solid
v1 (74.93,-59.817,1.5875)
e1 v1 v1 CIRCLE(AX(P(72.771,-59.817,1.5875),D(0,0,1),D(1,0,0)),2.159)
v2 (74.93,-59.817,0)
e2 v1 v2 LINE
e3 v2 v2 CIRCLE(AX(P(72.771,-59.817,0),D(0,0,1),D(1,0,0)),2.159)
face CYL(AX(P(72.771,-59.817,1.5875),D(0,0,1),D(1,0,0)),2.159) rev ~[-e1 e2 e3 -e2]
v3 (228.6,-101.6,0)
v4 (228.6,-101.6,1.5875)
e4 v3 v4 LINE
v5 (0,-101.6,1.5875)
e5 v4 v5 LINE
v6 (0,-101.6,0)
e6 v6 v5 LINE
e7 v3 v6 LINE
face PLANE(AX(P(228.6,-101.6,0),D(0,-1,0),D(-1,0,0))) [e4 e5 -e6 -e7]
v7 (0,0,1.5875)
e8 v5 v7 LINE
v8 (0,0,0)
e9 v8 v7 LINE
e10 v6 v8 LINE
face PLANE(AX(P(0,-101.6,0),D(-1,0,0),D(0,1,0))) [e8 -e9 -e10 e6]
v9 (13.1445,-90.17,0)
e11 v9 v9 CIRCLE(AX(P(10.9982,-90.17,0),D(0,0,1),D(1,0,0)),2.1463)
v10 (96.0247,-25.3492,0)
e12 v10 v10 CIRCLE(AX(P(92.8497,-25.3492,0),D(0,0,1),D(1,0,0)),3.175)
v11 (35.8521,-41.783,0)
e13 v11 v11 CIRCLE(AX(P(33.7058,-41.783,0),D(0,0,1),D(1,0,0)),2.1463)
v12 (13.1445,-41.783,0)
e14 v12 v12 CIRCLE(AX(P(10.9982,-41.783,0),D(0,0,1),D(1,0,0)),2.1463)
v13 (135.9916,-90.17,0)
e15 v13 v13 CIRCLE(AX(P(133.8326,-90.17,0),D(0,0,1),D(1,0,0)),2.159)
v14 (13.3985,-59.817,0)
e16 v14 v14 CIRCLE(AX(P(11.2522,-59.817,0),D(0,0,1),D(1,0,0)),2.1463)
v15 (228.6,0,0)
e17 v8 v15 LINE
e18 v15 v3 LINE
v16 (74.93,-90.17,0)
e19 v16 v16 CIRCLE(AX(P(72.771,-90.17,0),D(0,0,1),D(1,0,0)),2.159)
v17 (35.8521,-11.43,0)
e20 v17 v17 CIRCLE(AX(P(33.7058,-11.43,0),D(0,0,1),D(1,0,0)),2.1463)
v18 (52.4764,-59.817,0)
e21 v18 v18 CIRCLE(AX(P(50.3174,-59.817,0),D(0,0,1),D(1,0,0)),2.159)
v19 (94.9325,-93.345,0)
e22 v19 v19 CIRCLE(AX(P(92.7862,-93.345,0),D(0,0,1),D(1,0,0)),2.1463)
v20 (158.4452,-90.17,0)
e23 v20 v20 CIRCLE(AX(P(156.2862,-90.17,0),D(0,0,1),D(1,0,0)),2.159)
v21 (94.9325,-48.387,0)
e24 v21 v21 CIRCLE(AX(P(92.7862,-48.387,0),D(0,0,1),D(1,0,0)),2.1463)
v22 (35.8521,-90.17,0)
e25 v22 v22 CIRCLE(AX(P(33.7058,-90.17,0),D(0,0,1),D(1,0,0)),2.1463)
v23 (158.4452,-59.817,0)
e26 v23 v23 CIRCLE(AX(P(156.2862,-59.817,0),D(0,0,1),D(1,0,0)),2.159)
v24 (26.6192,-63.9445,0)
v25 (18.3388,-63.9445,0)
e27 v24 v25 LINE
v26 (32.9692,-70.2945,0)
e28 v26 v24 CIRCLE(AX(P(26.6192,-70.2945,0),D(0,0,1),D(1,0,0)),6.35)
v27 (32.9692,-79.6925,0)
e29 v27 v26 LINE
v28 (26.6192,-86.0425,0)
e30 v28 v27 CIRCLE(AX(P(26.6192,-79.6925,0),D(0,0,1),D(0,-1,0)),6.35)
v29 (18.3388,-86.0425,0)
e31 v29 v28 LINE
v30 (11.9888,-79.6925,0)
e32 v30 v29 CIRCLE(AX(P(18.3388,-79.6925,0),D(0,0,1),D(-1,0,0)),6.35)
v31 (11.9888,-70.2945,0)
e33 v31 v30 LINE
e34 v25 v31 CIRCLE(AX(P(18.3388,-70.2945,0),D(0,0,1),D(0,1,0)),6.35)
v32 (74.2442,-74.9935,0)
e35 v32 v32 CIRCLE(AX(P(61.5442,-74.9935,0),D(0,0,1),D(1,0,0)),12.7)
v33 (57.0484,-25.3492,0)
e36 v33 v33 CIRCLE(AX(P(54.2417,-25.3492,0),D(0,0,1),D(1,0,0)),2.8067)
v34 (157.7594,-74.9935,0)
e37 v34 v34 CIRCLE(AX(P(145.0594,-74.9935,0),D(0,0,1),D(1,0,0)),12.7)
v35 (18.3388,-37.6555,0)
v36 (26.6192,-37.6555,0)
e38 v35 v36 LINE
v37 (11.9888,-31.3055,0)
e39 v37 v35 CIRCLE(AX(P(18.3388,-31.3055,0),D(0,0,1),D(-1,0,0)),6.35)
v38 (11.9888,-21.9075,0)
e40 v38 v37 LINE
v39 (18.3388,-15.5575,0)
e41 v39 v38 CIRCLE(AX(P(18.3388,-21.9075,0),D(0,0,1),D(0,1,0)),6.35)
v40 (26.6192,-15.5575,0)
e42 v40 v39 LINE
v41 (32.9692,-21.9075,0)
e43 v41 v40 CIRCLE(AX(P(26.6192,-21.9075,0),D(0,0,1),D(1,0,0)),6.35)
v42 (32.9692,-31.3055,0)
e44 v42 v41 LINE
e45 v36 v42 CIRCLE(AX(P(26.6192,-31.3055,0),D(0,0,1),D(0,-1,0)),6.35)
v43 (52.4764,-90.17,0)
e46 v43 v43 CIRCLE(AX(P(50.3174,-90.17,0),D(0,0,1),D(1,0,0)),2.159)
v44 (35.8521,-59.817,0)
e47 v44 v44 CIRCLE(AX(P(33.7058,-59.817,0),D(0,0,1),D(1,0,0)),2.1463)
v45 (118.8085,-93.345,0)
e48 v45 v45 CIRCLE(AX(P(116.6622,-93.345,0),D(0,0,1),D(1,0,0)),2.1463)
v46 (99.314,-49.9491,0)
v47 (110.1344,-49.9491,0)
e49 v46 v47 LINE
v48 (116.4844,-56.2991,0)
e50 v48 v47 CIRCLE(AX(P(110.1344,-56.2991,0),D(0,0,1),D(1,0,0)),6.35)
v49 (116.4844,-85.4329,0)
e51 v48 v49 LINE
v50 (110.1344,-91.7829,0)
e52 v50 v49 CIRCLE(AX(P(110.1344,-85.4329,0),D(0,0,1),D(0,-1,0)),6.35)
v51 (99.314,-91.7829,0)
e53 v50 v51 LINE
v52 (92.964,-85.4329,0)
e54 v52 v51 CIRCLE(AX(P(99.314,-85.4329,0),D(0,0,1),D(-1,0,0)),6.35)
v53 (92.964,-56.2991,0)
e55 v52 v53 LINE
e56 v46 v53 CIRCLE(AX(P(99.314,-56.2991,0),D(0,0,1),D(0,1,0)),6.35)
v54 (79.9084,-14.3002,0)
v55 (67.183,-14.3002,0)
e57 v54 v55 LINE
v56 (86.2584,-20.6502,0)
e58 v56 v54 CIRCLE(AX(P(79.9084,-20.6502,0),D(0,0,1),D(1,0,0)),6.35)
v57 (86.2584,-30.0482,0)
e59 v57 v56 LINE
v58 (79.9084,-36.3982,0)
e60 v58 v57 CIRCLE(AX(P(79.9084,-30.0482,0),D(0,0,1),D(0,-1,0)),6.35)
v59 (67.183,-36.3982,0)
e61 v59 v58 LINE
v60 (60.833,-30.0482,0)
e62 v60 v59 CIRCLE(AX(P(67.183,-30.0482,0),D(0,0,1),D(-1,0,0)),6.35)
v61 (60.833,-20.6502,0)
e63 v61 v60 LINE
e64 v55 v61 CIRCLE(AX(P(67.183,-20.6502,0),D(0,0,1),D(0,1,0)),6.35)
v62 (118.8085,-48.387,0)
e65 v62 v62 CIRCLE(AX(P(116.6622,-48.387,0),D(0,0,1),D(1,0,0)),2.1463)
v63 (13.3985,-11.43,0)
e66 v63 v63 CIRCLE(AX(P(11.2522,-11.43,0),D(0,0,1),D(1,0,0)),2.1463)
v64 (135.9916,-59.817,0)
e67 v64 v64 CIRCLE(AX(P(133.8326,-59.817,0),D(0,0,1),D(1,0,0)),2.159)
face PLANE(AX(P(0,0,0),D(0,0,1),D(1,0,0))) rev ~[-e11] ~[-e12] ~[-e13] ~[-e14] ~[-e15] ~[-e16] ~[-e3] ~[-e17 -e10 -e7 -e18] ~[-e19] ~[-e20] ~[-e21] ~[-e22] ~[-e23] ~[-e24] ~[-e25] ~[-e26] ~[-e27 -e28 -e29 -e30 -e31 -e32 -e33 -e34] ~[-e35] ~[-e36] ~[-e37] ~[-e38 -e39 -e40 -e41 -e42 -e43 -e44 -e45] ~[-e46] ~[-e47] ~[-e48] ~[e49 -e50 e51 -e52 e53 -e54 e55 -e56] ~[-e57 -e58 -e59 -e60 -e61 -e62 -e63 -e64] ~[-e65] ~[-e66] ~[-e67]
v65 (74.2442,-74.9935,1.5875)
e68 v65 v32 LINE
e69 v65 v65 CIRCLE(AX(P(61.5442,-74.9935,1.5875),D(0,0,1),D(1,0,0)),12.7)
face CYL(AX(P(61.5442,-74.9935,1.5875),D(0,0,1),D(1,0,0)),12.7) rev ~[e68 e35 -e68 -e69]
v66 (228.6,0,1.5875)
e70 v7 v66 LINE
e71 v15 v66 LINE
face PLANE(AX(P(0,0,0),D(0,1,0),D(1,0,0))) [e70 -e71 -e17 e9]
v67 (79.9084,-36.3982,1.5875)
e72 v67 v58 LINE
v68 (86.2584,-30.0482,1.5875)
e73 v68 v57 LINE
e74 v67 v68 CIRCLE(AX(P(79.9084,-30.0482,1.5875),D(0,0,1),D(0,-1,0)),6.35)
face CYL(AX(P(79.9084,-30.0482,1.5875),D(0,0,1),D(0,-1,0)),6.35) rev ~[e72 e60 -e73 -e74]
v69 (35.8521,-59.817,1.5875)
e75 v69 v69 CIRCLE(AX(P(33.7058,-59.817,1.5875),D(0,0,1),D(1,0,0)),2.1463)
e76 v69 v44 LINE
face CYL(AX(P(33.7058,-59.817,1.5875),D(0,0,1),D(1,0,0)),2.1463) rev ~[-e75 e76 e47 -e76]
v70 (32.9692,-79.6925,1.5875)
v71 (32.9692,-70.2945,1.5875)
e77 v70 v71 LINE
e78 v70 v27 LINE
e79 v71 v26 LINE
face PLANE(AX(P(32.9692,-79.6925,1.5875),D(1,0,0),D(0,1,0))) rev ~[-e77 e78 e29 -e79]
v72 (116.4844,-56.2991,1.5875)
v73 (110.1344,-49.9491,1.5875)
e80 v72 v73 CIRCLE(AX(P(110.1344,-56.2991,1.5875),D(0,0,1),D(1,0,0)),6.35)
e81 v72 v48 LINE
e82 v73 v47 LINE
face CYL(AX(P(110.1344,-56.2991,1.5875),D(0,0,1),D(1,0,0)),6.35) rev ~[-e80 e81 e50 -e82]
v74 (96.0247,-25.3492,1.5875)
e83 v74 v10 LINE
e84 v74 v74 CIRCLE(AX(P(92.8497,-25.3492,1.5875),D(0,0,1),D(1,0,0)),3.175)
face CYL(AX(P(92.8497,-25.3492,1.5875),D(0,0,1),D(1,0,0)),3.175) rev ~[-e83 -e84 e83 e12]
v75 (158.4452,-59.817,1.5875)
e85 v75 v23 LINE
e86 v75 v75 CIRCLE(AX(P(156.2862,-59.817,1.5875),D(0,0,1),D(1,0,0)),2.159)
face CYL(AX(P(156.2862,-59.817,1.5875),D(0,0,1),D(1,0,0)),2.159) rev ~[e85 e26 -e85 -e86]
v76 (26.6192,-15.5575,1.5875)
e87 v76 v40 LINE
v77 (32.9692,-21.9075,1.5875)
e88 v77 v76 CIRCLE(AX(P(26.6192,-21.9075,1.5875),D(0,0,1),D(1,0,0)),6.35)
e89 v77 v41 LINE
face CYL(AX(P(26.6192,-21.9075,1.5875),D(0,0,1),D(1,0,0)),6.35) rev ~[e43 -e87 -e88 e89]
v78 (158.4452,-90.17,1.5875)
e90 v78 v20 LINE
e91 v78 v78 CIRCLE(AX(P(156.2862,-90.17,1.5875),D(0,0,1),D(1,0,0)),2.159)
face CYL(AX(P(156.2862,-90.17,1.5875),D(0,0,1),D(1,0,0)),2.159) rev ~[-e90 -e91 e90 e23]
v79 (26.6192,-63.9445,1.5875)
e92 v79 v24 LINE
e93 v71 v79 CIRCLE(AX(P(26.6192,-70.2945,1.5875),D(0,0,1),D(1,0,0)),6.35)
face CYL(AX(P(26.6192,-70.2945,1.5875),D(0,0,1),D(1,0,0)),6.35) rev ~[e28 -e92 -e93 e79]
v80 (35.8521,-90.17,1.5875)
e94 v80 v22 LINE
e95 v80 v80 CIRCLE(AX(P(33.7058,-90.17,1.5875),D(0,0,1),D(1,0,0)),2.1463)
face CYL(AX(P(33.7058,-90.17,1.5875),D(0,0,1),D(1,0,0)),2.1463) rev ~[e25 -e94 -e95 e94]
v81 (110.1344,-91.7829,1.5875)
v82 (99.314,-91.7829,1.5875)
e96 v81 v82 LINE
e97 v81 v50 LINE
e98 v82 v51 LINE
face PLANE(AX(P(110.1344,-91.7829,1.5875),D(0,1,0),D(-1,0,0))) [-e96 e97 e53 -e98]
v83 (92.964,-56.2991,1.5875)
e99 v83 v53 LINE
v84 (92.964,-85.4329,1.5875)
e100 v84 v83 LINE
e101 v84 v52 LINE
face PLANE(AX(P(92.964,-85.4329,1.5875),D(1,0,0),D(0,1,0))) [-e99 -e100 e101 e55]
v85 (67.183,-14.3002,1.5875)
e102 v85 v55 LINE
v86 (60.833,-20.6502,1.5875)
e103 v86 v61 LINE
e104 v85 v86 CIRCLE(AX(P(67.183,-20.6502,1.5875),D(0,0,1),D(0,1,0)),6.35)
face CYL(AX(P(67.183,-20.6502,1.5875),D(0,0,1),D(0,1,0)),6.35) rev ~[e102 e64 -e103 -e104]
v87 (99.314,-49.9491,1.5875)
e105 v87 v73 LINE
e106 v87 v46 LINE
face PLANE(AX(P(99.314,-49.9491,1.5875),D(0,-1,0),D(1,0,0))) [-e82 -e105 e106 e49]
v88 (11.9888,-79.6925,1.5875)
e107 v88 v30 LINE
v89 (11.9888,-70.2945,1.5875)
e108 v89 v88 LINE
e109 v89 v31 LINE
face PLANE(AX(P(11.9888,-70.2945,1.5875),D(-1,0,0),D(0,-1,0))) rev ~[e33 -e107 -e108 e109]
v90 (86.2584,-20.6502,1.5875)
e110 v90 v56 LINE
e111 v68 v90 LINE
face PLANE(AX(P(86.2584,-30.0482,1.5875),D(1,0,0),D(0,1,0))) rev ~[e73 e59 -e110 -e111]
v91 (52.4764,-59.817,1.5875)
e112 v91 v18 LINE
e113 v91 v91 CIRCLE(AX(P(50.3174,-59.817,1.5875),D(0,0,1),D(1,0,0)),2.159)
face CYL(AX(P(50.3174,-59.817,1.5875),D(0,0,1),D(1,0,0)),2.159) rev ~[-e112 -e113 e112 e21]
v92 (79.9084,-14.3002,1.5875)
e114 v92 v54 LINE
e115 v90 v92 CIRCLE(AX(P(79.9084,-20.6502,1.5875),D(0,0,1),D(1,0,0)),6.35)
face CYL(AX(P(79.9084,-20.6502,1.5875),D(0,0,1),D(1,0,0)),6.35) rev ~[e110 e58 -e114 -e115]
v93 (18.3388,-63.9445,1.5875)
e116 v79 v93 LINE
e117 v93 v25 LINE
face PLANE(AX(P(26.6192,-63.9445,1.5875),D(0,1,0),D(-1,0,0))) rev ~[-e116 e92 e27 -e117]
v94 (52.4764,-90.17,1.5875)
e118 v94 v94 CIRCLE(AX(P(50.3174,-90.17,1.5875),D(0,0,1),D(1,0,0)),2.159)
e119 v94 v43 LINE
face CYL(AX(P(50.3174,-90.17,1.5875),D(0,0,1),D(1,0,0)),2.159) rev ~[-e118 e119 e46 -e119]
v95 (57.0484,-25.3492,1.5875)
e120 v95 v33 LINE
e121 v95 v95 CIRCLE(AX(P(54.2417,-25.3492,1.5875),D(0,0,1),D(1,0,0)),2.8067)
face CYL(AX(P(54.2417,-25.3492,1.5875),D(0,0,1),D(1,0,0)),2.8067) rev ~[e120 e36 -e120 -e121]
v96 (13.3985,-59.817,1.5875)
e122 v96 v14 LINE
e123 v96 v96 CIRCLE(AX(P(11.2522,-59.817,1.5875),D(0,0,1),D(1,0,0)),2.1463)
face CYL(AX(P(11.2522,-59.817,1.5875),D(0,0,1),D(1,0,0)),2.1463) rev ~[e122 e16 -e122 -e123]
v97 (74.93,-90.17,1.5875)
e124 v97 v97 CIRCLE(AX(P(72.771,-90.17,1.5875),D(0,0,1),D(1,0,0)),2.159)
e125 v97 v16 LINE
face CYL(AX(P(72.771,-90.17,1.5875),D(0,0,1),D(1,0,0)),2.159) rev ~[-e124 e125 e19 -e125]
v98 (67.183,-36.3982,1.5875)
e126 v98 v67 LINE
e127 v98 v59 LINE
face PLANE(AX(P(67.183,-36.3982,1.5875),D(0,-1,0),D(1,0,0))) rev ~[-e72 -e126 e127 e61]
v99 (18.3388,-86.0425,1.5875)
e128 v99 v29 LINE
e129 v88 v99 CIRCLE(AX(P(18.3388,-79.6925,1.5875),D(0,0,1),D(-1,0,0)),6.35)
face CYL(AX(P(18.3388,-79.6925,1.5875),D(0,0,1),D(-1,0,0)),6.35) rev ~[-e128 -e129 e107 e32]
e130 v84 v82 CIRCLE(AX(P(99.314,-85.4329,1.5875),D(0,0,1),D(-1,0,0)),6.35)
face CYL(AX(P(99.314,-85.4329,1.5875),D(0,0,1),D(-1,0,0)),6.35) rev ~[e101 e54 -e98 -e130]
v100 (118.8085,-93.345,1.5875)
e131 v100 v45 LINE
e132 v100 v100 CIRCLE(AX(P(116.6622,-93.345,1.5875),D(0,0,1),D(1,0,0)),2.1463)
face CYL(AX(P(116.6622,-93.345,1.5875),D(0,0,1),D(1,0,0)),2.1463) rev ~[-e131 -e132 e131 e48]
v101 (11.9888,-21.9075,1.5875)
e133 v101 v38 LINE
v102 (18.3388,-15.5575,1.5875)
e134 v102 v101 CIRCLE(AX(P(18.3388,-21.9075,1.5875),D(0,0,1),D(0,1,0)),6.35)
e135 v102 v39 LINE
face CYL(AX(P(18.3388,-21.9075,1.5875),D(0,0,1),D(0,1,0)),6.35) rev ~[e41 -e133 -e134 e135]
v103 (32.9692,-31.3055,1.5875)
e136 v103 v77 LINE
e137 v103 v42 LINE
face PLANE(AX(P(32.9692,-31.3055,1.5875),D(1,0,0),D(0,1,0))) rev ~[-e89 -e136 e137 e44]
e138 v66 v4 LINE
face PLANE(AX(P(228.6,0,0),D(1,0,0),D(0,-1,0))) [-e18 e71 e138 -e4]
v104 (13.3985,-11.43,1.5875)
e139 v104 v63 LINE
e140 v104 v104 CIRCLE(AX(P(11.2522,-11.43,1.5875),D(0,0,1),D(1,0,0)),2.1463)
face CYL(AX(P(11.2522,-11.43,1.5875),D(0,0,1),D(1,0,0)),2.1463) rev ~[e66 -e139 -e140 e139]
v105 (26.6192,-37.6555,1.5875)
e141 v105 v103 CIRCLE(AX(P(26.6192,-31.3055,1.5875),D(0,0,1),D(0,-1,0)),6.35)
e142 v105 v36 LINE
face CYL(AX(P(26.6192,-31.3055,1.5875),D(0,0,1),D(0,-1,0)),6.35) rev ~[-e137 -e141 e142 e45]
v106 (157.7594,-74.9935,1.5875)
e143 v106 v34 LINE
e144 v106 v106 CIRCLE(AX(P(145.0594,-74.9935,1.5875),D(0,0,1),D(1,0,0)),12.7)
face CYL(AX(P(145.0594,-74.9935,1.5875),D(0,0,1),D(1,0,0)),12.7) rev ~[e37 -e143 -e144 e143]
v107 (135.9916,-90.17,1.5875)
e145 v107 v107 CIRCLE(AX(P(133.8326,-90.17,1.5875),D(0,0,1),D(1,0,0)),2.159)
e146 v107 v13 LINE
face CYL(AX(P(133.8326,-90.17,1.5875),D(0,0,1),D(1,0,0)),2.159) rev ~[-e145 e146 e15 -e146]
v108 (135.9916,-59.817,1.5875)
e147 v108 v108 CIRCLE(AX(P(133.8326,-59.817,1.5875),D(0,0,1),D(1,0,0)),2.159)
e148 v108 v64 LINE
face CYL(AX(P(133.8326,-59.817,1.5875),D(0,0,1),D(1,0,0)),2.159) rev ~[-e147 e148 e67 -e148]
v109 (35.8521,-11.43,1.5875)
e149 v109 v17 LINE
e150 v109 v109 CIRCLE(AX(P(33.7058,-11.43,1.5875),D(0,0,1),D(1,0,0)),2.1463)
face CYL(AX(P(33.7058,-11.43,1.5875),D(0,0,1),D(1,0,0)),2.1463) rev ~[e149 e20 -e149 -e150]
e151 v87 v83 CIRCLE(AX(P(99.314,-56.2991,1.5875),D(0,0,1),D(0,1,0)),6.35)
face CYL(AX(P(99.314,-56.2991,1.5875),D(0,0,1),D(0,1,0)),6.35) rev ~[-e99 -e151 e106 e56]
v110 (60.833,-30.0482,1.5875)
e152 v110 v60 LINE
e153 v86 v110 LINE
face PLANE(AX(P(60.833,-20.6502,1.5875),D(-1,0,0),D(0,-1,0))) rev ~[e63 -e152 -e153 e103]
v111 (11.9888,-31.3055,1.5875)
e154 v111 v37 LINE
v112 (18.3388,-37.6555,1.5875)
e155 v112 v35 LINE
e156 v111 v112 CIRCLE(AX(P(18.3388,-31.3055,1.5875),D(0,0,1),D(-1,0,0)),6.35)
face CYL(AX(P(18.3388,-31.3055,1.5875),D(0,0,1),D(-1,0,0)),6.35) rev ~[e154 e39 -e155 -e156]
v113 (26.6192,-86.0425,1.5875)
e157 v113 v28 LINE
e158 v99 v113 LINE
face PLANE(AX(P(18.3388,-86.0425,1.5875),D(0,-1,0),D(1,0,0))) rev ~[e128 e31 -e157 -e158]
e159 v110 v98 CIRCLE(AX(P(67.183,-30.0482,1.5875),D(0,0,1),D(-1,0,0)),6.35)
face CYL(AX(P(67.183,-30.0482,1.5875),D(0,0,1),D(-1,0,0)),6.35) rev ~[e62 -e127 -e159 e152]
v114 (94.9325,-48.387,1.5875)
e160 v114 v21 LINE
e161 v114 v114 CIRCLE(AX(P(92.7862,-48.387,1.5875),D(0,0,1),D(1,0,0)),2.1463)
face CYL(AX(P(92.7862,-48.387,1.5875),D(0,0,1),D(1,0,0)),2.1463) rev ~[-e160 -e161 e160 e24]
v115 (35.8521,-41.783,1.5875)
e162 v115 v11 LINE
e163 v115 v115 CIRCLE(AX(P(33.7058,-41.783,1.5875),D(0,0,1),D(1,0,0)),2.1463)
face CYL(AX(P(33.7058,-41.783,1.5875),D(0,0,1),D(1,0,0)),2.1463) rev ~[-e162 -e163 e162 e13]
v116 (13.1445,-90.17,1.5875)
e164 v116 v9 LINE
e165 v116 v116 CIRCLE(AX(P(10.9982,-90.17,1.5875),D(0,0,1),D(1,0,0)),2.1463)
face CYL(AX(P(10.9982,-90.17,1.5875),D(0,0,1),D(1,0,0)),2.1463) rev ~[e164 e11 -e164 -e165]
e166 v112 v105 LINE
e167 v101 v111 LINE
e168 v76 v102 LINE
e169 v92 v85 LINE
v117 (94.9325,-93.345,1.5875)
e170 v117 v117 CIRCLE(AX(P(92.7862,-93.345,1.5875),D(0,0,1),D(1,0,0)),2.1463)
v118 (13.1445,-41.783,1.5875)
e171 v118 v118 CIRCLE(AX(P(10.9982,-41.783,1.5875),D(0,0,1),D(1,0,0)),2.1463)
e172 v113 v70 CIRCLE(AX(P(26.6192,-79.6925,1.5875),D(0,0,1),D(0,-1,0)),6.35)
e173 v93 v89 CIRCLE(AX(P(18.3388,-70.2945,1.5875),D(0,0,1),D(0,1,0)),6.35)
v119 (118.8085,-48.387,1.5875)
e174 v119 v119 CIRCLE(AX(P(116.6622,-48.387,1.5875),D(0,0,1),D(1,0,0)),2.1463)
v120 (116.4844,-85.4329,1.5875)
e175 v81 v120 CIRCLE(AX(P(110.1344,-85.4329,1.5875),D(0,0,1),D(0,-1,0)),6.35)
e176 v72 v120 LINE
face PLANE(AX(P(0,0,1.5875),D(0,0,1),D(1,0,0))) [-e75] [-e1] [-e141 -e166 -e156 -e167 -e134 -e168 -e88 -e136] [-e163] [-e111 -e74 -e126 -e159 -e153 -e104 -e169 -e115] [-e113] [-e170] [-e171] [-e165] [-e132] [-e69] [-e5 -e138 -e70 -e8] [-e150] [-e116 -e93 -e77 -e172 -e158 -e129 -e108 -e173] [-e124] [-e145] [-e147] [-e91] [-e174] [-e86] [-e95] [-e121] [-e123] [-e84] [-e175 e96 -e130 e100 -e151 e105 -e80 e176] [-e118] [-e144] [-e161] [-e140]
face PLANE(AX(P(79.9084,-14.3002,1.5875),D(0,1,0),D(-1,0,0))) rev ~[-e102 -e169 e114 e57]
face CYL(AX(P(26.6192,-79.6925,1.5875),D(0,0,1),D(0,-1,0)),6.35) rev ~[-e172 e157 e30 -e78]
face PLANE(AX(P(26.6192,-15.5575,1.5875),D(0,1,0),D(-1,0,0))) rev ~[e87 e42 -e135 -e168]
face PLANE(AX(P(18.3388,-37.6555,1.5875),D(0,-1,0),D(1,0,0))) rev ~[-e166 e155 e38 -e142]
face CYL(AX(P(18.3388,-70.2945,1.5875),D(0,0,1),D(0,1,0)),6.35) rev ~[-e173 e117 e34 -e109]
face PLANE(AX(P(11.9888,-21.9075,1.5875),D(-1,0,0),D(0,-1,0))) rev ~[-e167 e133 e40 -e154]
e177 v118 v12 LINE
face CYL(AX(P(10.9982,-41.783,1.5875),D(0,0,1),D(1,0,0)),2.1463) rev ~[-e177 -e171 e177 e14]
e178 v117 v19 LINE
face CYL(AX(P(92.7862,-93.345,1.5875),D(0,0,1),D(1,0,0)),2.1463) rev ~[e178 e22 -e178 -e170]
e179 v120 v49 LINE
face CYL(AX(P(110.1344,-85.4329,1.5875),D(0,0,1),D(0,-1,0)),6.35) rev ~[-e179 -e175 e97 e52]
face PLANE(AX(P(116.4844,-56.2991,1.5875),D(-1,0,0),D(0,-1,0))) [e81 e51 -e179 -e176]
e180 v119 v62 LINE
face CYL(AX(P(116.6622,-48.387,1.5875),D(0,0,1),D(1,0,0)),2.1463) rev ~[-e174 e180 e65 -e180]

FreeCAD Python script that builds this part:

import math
import FreeCAD as App
import Part
import Sketcher

V = App.Vector
Q = App.Units.Quantity


def add_polygon(sketch, points):
    """Adds a closed chain of lines whose ends are joined by coincident constraints."""
    first, n = sketch.GeometryCount, len(points)
    for a, b in zip(points, points[1:] + points[:1]):
        sketch.addGeometry(Part.LineSegment(App.Vector(*a, 0), App.Vector(*b, 0)), False)
    for i in range(n):
        sketch.addConstraint(Sketcher.Constraint("Coincident", first + i, 2, first + (i + 1) % n, 1))

doc = App.newDocument("Part")
body = doc.addObject("PartDesign::Body", "Body")

# Sketch on XY plane
sketch1 = body.newObject("Sketcher::SketchObject", "Sketch")
sketch1.AttachmentSupport = (doc.getObject("XY_Plane"), [""])
sketch1.MapMode = "FlatFace"
add_polygon(sketch1, [(229, 0), (0, 0), (0, -102), (229, -102)])  # lines 0-3
sketch1.addConstraint([
    Sketcher.Constraint("Horizontal", 0),
    Sketcher.Constraint("Vertical", 1),
    Sketcher.Constraint("Horizontal", 2),
    Sketcher.Constraint("Vertical", 3),
    Sketcher.Constraint("Coincident", 0, 2, -1, 1),
    Sketcher.Constraint("DistanceX", 0, 2, 0, 1, Q("9 in")),
    Sketcher.Constraint("DistanceY", 1, 2, 1, 1, Q("4 in")),
])
pad1 = body.newObject("PartDesign::Pad", "Pad")
pad1.Profile = sketch1
pad1.Length = Q("0.0625 in")

# Sketch on XY plane
sketch2 = body.newObject("Sketcher::SketchObject", "Sketch001")
sketch2.AttachmentSupport = (doc.getObject("XY_Plane"), [""])
sketch2.MapMode = "FlatFace"
sketch2.AttachmentOffset = App.Placement(V(0, 0, 0.0625 * 25.4), App.Rotation())
sketch2.addGeometry([
    Part.ArcOfCircle(Part.Circle(V(18.3, -31.3, 0), V(0, 0, 1), 6.3), math.radians(180), math.radians(270)),  # 0
    Part.LineSegment(V(18.3, -37.7, 0), V(26.6, -37.7, 0)),  # 1
    Part.ArcOfCircle(Part.Circle(V(26.6, -31.3, 0), V(0, 0, 1), 6.4), math.radians(-90), math.radians(0)),  # 2
    Part.LineSegment(V(33, -31.3, 0), V(33, -21.9, 0)),  # 3
    Part.ArcOfCircle(Part.Circle(V(26.6, -21.9, 0), V(0, 0, 1), 6.4), math.radians(0), math.radians(90)),  # 4
    Part.LineSegment(V(26.6, -15.6, 0), V(18.3, -15.6, 0)),  # 5
    Part.ArcOfCircle(Part.Circle(V(18.3, -21.9, 0), V(0, 0, 1), 6.3), math.radians(90), math.radians(180)),  # 6
    Part.LineSegment(V(12, -21.9, 0), V(12, -31.3, 0)),  # 7
    Part.Circle(V(11, -41.8, 0), V(0, 0, 1), 2.1),  # 8
    Part.Circle(V(33.7, -11.4, 0), V(0, 0, 1), 2.1),  # 9
    Part.Circle(V(33.7, -41.8, 0), V(0, 0, 1), 2.1),  # 10
    Part.Circle(V(11.3, -11.4, 0), V(0, 0, 1), 2.1),  # 11
], False)
sketch2.addConstraint([
    Sketcher.Constraint("Tangent", 0, 2, 1, 1),
    Sketcher.Constraint("Tangent", 1, 2, 2, 1),
    Sketcher.Constraint("Tangent", 2, 2, 3, 1),
    Sketcher.Constraint("Tangent", 3, 2, 4, 1),
    Sketcher.Constraint("Tangent", 4, 2, 5, 1),
    Sketcher.Constraint("Tangent", 5, 2, 6, 1),
    Sketcher.Constraint("Tangent", 6, 2, 7, 1),
    Sketcher.Constraint("Tangent", 7, 2, 0, 1),
    Sketcher.Constraint("Horizontal", 1),
    Sketcher.Constraint("Vertical", 3),
    Sketcher.Constraint("Horizontal", 5),
    Sketcher.Constraint("Vertical", 7),
    Sketcher.Constraint("Equal", 0, 2),
    Sketcher.Constraint("Equal", 2, 4),
    Sketcher.Constraint("Equal", 4, 6),
    Sketcher.Constraint("Equal", 8, 9),
    Sketcher.Constraint("Equal", 9, 10),
    Sketcher.Constraint("Equal", 10, 11),
    Sketcher.Constraint("Horizontal", 8, 3, 10, 3),
    Sketcher.Constraint("Horizontal", 9, 3, 11, 3),
    Sketcher.Constraint("Vertical", 9, 3, 10, 3),
    Sketcher.Constraint("Radius", 0, Q("0.25 in")),
    Sketcher.Constraint("Diameter", 8, Q("0.169 in")),
    Sketcher.Constraint("DistanceX", 2, 2, 10, 3, Q("0.029 in")),
    Sketcher.Constraint("DistanceX", 11, 3, 6, 2, Q("0.029 in")),
    Sketcher.Constraint("DistanceX", 8, 3, 7, 2, Q("0.039 in")),
    Sketcher.Constraint("DistanceY", 3, 1, 3, 2, Q("0.37 in")),
    Sketcher.Constraint("DistanceY", 8, 3, 0, 2, Q("0.1625 in")),
    Sketcher.Constraint("DistanceY", 4, 2, 9, 3, Q("0.1625 in")),
    Sketcher.Constraint("DistanceX", 1, 1, 1, 2, Q("0.326 in")),
    Sketcher.Constraint("DistanceY", 9, 3, -1, 1, Q("0.45 in")),
    Sketcher.Constraint("DistanceX", -1, 1, 0, 3, Q("0.722 in")),
])
pocket1 = body.newObject("PartDesign::Pocket", "Pocket")
pocket1.Profile = sketch2
pocket1.Length = Q("0.0625 in")

# Sketch on XY plane
sketch3 = body.newObject("Sketcher::SketchObject", "Sketch002")
sketch3.AttachmentSupport = (doc.getObject("XY_Plane"), [""])
sketch3.MapMode = "FlatFace"
sketch3.AttachmentOffset = App.Placement(V(0, 0, 0.0625 * 25.4), App.Rotation())
sketch3.addGeometry([
    Part.ArcOfCircle(Part.Circle(V(67.2, -30, 0), V(0, 0, 1), 6.4), math.radians(180), math.radians(270)),  # 0
    Part.LineSegment(V(67.2, -36.4, 0), V(79.9, -36.4, 0)),  # 1
    Part.ArcOfCircle(Part.Circle(V(79.9, -30, 0), V(0, 0, 1), 6.4), math.radians(-90), math.radians(0)),  # 2
    Part.LineSegment(V(86.3, -30, 0), V(86.3, -20.7, 0)),  # 3
    Part.ArcOfCircle(Part.Circle(V(79.9, -20.7, 0), V(0, 0, 1), 6.3), math.radians(0), math.radians(90)),  # 4
    Part.LineSegment(V(79.9, -14.3, 0), V(67.2, -14.3, 0)),  # 5
    Part.ArcOfCircle(Part.Circle(V(67.2, -20.7, 0), V(0, 0, 1), 6.4), math.radians(90), math.radians(180)),  # 6
    Part.LineSegment(V(60.8, -20.7, 0), V(60.8, -30, 0)),  # 7
    Part.Circle(V(54.2, -25.3, 0), V(0, 0, 1), 2.8),  # 8
    Part.Circle(V(92.8, -25.3, 0), V(0, 0, 1), 3.2),  # 9
], False)
sketch3.addConstraint([
    Sketcher.Constraint("Tangent", 0, 2, 1, 1),
    Sketcher.Constraint("Tangent", 1, 2, 2, 1),
    Sketcher.Constraint("Tangent", 2, 2, 3, 1),
    Sketcher.Constraint("Tangent", 3, 2, 4, 1),
    Sketcher.Constraint("Tangent", 4, 2, 5, 1),
    Sketcher.Constraint("Tangent", 5, 2, 6, 1),
    Sketcher.Constraint("Tangent", 6, 2, 7, 1),
    Sketcher.Constraint("Tangent", 7, 2, 0, 1),
    Sketcher.Constraint("Horizontal", 1),
    Sketcher.Constraint("Vertical", 3),
    Sketcher.Constraint("Horizontal", 5),
    Sketcher.Constraint("Vertical", 7),
    Sketcher.Constraint("Equal", 0, 2),
    Sketcher.Constraint("Equal", 2, 4),
    Sketcher.Constraint("Equal", 4, 6),
    Sketcher.Constraint("Horizontal", 8, 3, 9, 3),
    Sketcher.Constraint("Diameter", 9, Q("0.25 in")),
    Sketcher.Constraint("Radius", 0, Q("0.25 in")),
    Sketcher.Constraint("Diameter", 8, Q("0.221 in")),
    Sketcher.Constraint("DistanceY", 0, 2, 8, 3, Q("0.435 in")),
    Sketcher.Constraint("DistanceY", 8, 3, 5, 2, Q("0.435 in")),
    Sketcher.Constraint("DistanceX", 2, 2, 9, 3, Q("0.2595 in")),
    Sketcher.Constraint("DistanceX", 8, 3, 6, 2, Q("0.2595 in")),
    Sketcher.Constraint("DistanceX", 1, 1, 1, 2, Q("0.501 in")),
    Sketcher.Constraint("DistanceX", -1, 1, 0, 3, Q("2.645 in")),
    Sketcher.Constraint("DistanceY", 0, 3, -1, 1, Q("1.183 in")),
])
pocket2 = body.newObject("PartDesign::Pocket", "Pocket001")
pocket2.Profile = sketch3
pocket2.Length = Q("0.0625 in")

# Sketch on XY plane
sketch4 = body.newObject("Sketcher::SketchObject", "Sketch003")
sketch4.AttachmentSupport = (doc.getObject("XY_Plane"), [""])
sketch4.MapMode = "FlatFace"
sketch4.AttachmentOffset = App.Placement(V(0, 0, 0.0625 * 25.4), App.Rotation())
sketch4.addGeometry([
    Part.Circle(V(61.5, -75, 0), V(0, 0, 1), 12.7),  # 0
    Part.Circle(V(50.3, -90.2, 0), V(0, 0, 1), 2.2),  # 1
    Part.Circle(V(50.3, -59.8, 0), V(0, 0, 1), 2.2),  # 2
    Part.Circle(V(72.8, -90.2, 0), V(0, 0, 1), 2.2),  # 3
    Part.Circle(V(72.8, -59.8, 0), V(0, 0, 1), 2.2),  # 4
], False)
sketch4.addConstraint([
    Sketcher.Constraint("Equal", 1, 2),
    Sketcher.Constraint("Equal", 2, 3),
    Sketcher.Constraint("Equal", 3, 4),
    Sketcher.Constraint("Horizontal", 1, 3, 3, 3),
    Sketcher.Constraint("Horizontal", 2, 3, 4, 3),
    Sketcher.Constraint("Vertical", 1, 3, 2, 3),
    Sketcher.Constraint("Vertical", 3, 3, 4, 3),
    Sketcher.Constraint("Diameter", 0, Q("1 in")),
    Sketcher.Constraint("Diameter", 1, Q("0.17 in")),
    Sketcher.Constraint("DistanceX", 1, 3, 0, 3, Q("0.442 in")),
    Sketcher.Constraint("DistanceX", 0, 3, 3, 3, Q("0.442 in")),
    Sketcher.Constraint("DistanceY", 1, 3, 0, 3, Q("0.5975 in")),
    Sketcher.Constraint("DistanceY", 0, 3, 2, 3, Q("0.5975 in")),
    Sketcher.Constraint("DistanceY", 1, 3, -1, 1, Q("3.55 in")),
    Sketcher.Constraint("DistanceX", -1, 1, 0, 3, Q("2.423 in")),
])
pocket3 = body.newObject("PartDesign::Pocket", "Pocket002")
pocket3.Profile = sketch4
pocket3.Length = Q("0.0625 in")

# Sketch on XY plane
sketch5 = body.newObject("Sketcher::SketchObject", "Sketch004")
sketch5.AttachmentSupport = (doc.getObject("XY_Plane"), [""])
sketch5.MapMode = "FlatFace"
sketch5.AttachmentOffset = App.Placement(V(0, 0, 0.0625 * 25.4), App.Rotation())
sketch5.addGeometry([
    Part.LineSegment(V(26.6, -63.9, 0), V(18.3, -63.9, 0)),  # 0
    Part.ArcOfCircle(Part.Circle(V(18.3, -70.3, 0), V(0, 0, 1), 6.4), math.radians(90), math.radians(180)),  # 1
    Part.LineSegment(V(12, -70.3, 0), V(12, -79.7, 0)),  # 2
    Part.ArcOfCircle(Part.Circle(V(18.3, -79.7, 0), V(0, 0, 1), 6.3), math.radians(180), math.radians(270)),  # 3
    Part.LineSegment(V(18.3, -86, 0), V(26.6, -86, 0)),  # 4
    Part.ArcOfCircle(Part.Circle(V(26.6, -79.7, 0), V(0, 0, 1), 6.4), math.radians(-90), math.radians(0)),  # 5
    Part.LineSegment(V(33, -79.7, 0), V(33, -70.3, 0)),  # 6
    Part.ArcOfCircle(Part.Circle(V(26.6, -70.3, 0), V(0, 0, 1), 6.4), math.radians(0), math.radians(90)),  # 7
    Part.Circle(V(11.3, -59.8, 0), V(0, 0, 1), 2.1),  # 8
    Part.Circle(V(33.7, -59.8, 0), V(0, 0, 1), 2.1),  # 9
    Part.Circle(V(11, -90.2, 0), V(0, 0, 1), 2.1),  # 10
    Part.Circle(V(33.7, -90.2, 0), V(0, 0, 1), 2.1),  # 11
], False)
sketch5.addConstraint([
    Sketcher.Constraint("Tangent", 0, 2, 1, 1),
    Sketcher.Constraint("Tangent", 1, 2, 2, 1),
    Sketcher.Constraint("Tangent", 2, 2, 3, 1),
    Sketcher.Constraint("Tangent", 3, 2, 4, 1),
    Sketcher.Constraint("Tangent", 4, 2, 5, 1),
    Sketcher.Constraint("Tangent", 5, 2, 6, 1),
    Sketcher.Constraint("Tangent", 6, 2, 7, 1),
    Sketcher.Constraint("Tangent", 7, 2, 0, 1),
    Sketcher.Constraint("Horizontal", 0),
    Sketcher.Constraint("Vertical", 2),
    Sketcher.Constraint("Horizontal", 4),
    Sketcher.Constraint("Vertical", 6),
    Sketcher.Constraint("Equal", 1, 3),
    Sketcher.Constraint("Equal", 3, 5),
    Sketcher.Constraint("Equal", 5, 7),
    Sketcher.Constraint("Equal", 8, 9),
    Sketcher.Constraint("Equal", 9, 10),
    Sketcher.Constraint("Equal", 10, 11),
    Sketcher.Constraint("Horizontal", 8, 3, 9, 3),
    Sketcher.Constraint("Horizontal", 10, 3, 11, 3),
    Sketcher.Constraint("Vertical", 9, 3, 11, 3),
    Sketcher.Constraint("Radius", 1, Q("0.25 in")),
    Sketcher.Constraint("Diameter", 8, Q("0.169 in")),
    Sketcher.Constraint("DistanceX", 8, 3, 1, 2, Q("0.029 in")),
    Sketcher.Constraint("DistanceX", 10, 3, 2, 2, Q("0.039 in")),
    Sketcher.Constraint("DistanceX", 5, 2, 11, 3, Q("0.029 in")),
    Sketcher.Constraint("DistanceY", 2, 2, 2, 1, Q("0.37 in")),
    Sketcher.Constraint("DistanceY", 0, 2, 8, 3, Q("0.1625 in")),
    Sketcher.Constraint("DistanceY", 10, 3, 3, 2, Q("0.1625 in")),
    Sketcher.Constraint("DistanceX", 0, 2, 0, 1, Q("0.326 in")),
    Sketcher.Constraint("DistanceY", 10, 3, -1, 1, Q("3.55 in")),
    Sketcher.Constraint("DistanceX", -1, 1, 1, 3, Q("0.722 in")),
])
pocket4 = body.newObject("PartDesign::Pocket", "Pocket003")
pocket4.Profile = sketch5
pocket4.Length = Q("0.0625 in")

# Sketch on XY plane
sketch6 = body.newObject("Sketcher::SketchObject", "Sketch005")
sketch6.AttachmentSupport = (doc.getObject("XY_Plane"), [""])
sketch6.MapMode = "FlatFace"
sketch6.AttachmentOffset = App.Placement(V(0, 0, 0.0625 * 25.4), App.Rotation())
sketch6.addGeometry([
    Part.LineSegment(V(110.1, -49.9, 0), V(99.3, -49.9, 0)),  # 0
    Part.ArcOfCircle(Part.Circle(V(99.3, -56.3, 0), V(0, 0, 1), 6.4), math.radians(90), math.radians(180)),  # 1
    Part.LineSegment(V(93, -56.3, 0), V(93, -85.4, 0)),  # 2
    Part.ArcOfCircle(Part.Circle(V(99.3, -85.4, 0), V(0, 0, 1), 6.3), math.radians(180), math.radians(270)),  # 3
    Part.LineSegment(V(99.3, -91.8, 0), V(110.1, -91.8, 0)),  # 4
    Part.ArcOfCircle(Part.Circle(V(110.1, -85.4, 0), V(0, 0, 1), 6.3), math.radians(-90), math.radians(0)),  # 5
    Part.LineSegment(V(116.5, -85.4, 0), V(116.5, -56.3, 0)),  # 6
    Part.ArcOfCircle(Part.Circle(V(110.1, -56.3, 0), V(0, 0, 1), 6.3), math.radians(0), math.radians(90)),  # 7
    Part.Circle(V(92.8, -48.4, 0), V(0, 0, 1), 2.1),  # 8
    Part.Circle(V(116.7, -48.4, 0), V(0, 0, 1), 2.1),  # 9
    Part.Circle(V(116.7, -93.3, 0), V(0, 0, 1), 2.1),  # 10
    Part.Circle(V(92.8, -93.3, 0), V(0, 0, 1), 2.1),  # 11
], False)
sketch6.addConstraint([
    Sketcher.Constraint("Tangent", 0, 2, 1, 1),
    Sketcher.Constraint("Tangent", 1, 2, 2, 1),
    Sketcher.Constraint("Tangent", 2, 2, 3, 1),
    Sketcher.Constraint("Tangent", 3, 2, 4, 1),
    Sketcher.Constraint("Tangent", 4, 2, 5, 1),
    Sketcher.Constraint("Tangent", 5, 2, 6, 1),
    Sketcher.Constraint("Tangent", 6, 2, 7, 1),
    Sketcher.Constraint("Tangent", 7, 2, 0, 1),
    Sketcher.Constraint("Horizontal", 0),
    Sketcher.Constraint("Vertical", 2),
    Sketcher.Constraint("Horizontal", 4),
    Sketcher.Constraint("Vertical", 6),
    Sketcher.Constraint("Equal", 1, 3),
    Sketcher.Constraint("Equal", 3, 5),
    Sketcher.Constraint("Equal", 5, 7),
    Sketcher.Constraint("Equal", 8, 9),
    Sketcher.Constraint("Equal", 9, 10),
    Sketcher.Constraint("Equal", 10, 11),
    Sketcher.Constraint("Horizontal", 8, 3, 9, 3),
    Sketcher.Constraint("Horizontal", 10, 3, 11, 3),
    Sketcher.Constraint("Vertical", 9, 3, 10, 3),
    Sketcher.Constraint("Vertical", 8, 3, 11, 3),
    Sketcher.Constraint("Radius", 1, Q("0.25 in")),
    Sketcher.Constraint("Diameter", 8, Q("0.169 in")),
    Sketcher.Constraint("DistanceX", 8, 3, 9, 3, Q("0.94 in")),
    Sketcher.Constraint("DistanceX", 8, 3, 1, 2, Q("0.007 in")),
    Sketcher.Constraint("DistanceX", 5, 2, 10, 3, Q("0.007 in")),
    Sketcher.Constraint("DistanceY", 0, 2, 8, 3, Q("0.0615 in")),
    Sketcher.Constraint("DistanceY", 11, 3, 3, 2, Q("0.0615 in")),
    Sketcher.Constraint("DistanceY", 2, 2, 2, 1, Q("1.147 in")),
    Sketcher.Constraint("DistanceX", -1, 1, 1, 3, Q("3.91 in")),
    Sketcher.Constraint("DistanceY", 8, 3, -1, 1, Q("1.905 in")),
])
pocket5 = body.newObject("PartDesign::Pocket", "Pocket004")
pocket5.Profile = sketch6
pocket5.Length = Q("0.0625 in")

# Sketch on XY plane
sketch7 = body.newObject("Sketcher::SketchObject", "Sketch006")
sketch7.AttachmentSupport = (doc.getObject("XY_Plane"), [""])
sketch7.MapMode = "FlatFace"
sketch7.AttachmentOffset = App.Placement(V(0, 0, 0.0625 * 25.4), App.Rotation())
sketch7.addGeometry([
    Part.Circle(V(156.3, -90.2, 0), V(0, 0, 1), 2.2),  # 0
    Part.Circle(V(145.1, -75, 0), V(0, 0, 1), 12.7),  # 1
    Part.Circle(V(133.8, -59.8, 0), V(0, 0, 1), 2.2),  # 2
    Part.Circle(V(156.3, -59.8, 0), V(0, 0, 1), 2.2),  # 3
    Part.Circle(V(133.8, -90.2, 0), V(0, 0, 1), 2.2),  # 4
], False)
sketch7.addConstraint([
    Sketcher.Constraint("Equal", 0, 2),
    Sketcher.Constraint("Equal", 2, 3),
    Sketcher.Constraint("Equal", 3, 4),
    Sketcher.Constraint("Horizontal", 2, 3, 3, 3),
    Sketcher.Constraint("Horizontal", 0, 3, 4, 3),
    Sketcher.Constraint("Vertical", 0, 3, 3, 3),
    Sketcher.Constraint("Vertical", 2, 3, 4, 3),
    Sketcher.Constraint("Diameter", 1, Q("1 in")),
    Sketcher.Constraint("Diameter", 0, Q("0.17 in")),
    Sketcher.Constraint("DistanceX", 1, 3, 0, 3, Q("0.442 in")),
    Sketcher.Constraint("DistanceX", 2, 3, 1, 3, Q("0.442 in")),
    Sketcher.Constraint("DistanceY", 0, 3, 1, 3, Q("0.5975 in")),
    Sketcher.Constraint("DistanceY", 1, 3, 2, 3, Q("0.5975 in")),
    Sketcher.Constraint("DistanceY", 0, 3, -1, 1, Q("3.55 in")),
    Sketcher.Constraint("DistanceX", -1, 1, 0, 3, Q("6.153 in")),
])
pocket6 = body.newObject("PartDesign::Pocket", "Pocket005")
pocket6.Profile = sketch7
pocket6.Length = Q("0.0625 in")

doc.recompute()
